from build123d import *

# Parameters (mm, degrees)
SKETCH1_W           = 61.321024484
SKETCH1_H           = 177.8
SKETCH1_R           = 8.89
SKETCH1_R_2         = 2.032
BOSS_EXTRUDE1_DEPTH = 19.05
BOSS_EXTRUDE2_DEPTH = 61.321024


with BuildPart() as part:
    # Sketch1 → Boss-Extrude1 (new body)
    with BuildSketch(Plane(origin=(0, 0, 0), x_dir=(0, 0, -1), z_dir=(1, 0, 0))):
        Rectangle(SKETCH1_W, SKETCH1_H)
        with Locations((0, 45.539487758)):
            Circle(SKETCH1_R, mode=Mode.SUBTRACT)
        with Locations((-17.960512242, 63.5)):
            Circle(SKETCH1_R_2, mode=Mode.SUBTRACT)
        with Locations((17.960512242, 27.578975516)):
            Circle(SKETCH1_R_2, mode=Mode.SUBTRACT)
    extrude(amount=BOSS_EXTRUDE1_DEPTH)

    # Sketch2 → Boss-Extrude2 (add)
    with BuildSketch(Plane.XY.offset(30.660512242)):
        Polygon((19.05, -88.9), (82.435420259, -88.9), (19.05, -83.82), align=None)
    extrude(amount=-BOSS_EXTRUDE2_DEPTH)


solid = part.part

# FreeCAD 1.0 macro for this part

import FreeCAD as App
import Part
import Sketcher

V = App.Vector
Q = App.Units.Quantity

doc = App.newDocument("Part")
params = doc.addObject("Spreadsheet::Sheet", "Params")
for row, (alias, value) in enumerate([
    ("sketch1_diameter", "0.7 in"),
    ("sketch1_diameter2", "0.16 in"),
    ("sketch1_width", "7 in"),
    ("pad1_length", "0.75 in"),
    ("sketch2_height", "0.2 in"),
    ("pad2_length", "61.321024 mm"),
], start=1):
    params.set(f"A{row}", alias)
    params.set(f"B{row}", "=" + value)
    params.setAlias(f"B{row}", alias)

body = doc.addObject("PartDesign::Body", "Body")

# Sketch on YZ plane
sketch1 = body.newObject("Sketcher::SketchObject", "Sketch")
sketch1.AttachmentSupport = (doc.getObject("YZ_Plane"), [""])
sketch1.MapMode = "FlatFace"
sketch1.addGeometry([
    Part.LineSegment(V(88.9, 30.660512, 0), V(-88.9, 30.660512, 0)),  # 0
    Part.LineSegment(V(-88.9, 30.660512, 0), V(-88.9, -30.660512, 0)),  # 1
    Part.LineSegment(V(-88.9, -30.660512, 0), V(88.9, -30.660512, 0)),  # 2
    Part.LineSegment(V(88.9, -30.660512, 0), V(88.9, 30.660512, 0)),  # 3
    Part.Circle(V(27.578976, -17.960512, 0), V(0, 0, 1), 2.032),  # 4
    Part.Circle(V(63.5, 17.960512, 0), V(0, 0, 1), 2.032),  # 5
    Part.Circle(V(45.539488, 0, 0), V(0, 0, 1), 8.89),  # 6
], False)
sketch1.addConstraint([
    Sketcher.Constraint("Coincident", 0, 2, 1, 1),
    Sketcher.Constraint("Coincident", 1, 2, 2, 1),
    Sketcher.Constraint("Coincident", 2, 2, 3, 1),
    Sketcher.Constraint("Coincident", 3, 2, 0, 1),
    Sketcher.Constraint("Horizontal", 0),
    Sketcher.Constraint("Vertical", 1),
    Sketcher.Constraint("Horizontal", 2),
    Sketcher.Constraint("Vertical", 3),
    Sketcher.Constraint("Equal", 4, 5),
    Sketcher.Constraint("Symmetric", 0, 2, 2, 2, -1, 1),
    Sketcher.Constraint("PointOnObject", 6, 3, -1),
    Sketcher.Constraint("Diameter", 6, Q("0.7 in")),
    Sketcher.Constraint("Diameter", 4, Q("0.16 in")),
    Sketcher.Constraint("DistanceX", 0, 2, 0, 1, Q("7 in")),
    Sketcher.Constraint("DistanceX", 0, 2, 5, 3, Q("6 in")),
    Sketcher.Constraint("DistanceY", 5, 3, 0, 2, Q("0.5 in")),
    Sketcher.Constraint("DistanceY", 1, 2, 4, 3, Q("0.5 in")),
    Sketcher.Constraint("DistanceY", 1, 2, 1, 1, Q("61.321024 mm")),
    Sketcher.Constraint("DistanceX", -1, 1, 4, 3, Q("27.578976 mm")),
    Sketcher.Constraint("DistanceX", -1, 1, 6, 3, Q("45.539488 mm")),
])
sketch1.setExpression("Constraints[11]", "Params.sketch1_diameter")
sketch1.setExpression("Constraints[12]", "Params.sketch1_diameter2")
sketch1.setExpression("Constraints[13]", "Params.sketch1_width")
pad1 = body.newObject("PartDesign::Pad", "Pad")
pad1.Profile = sketch1
pad1.setExpression("Length", "Params.pad1_length")

# Sketch on XY plane
sketch2 = body.newObject("Sketcher::SketchObject", "Sketch001")
sketch2.AttachmentSupport = (doc.getObject("XY_Plane"), [""])
sketch2.MapMode = "FlatFace"
sketch2.AttachmentOffset = App.Placement(V(0, 0, 30.660512), App.Rotation())
sketch2.addGeometry([
    Part.LineSegment(V(19.05, -88.9, 0), V(82.43542, -88.9, 0)),
    Part.LineSegment(V(82.43542, -88.9, 0), V(19.05, -83.82, 0)),
    Part.LineSegment(V(19.05, -83.82, 0), V(19.05, -88.9, 0)),
], False)
sketch2.addConstraint([
    Sketcher.Constraint("Coincident", 0, 2, 1, 1),
    Sketcher.Constraint("Coincident", 1, 2, 2, 1),
    Sketcher.Constraint("Coincident", 2, 2, 0, 1),
    Sketcher.Constraint("Horizontal", 0),
    Sketcher.Constraint("Vertical", 2),
    Sketcher.Constraint("DistanceY", 2, 2, 2, 1, Q("0.2 in")),
    Sketcher.Constraint("DistanceY", 0, 2, -1, 1, Q("3.5 in")),
    Sketcher.Constraint("DistanceX", -1, 1, 1, 2, Q("0.75 in")),
    Sketcher.Constraint("DistanceX", 0, 1, 0, 2, Q("63.38542 mm")),
])
sketch2.setExpression("Constraints[5]", "Params.sketch2_height")
pad2 = body.newObject("PartDesign::Pad", "Pad001")
pad2.Profile = sketch2
pad2.setExpression("Length", "Params.pad2_length")
pad2.Reversed = True

doc.recompute()
